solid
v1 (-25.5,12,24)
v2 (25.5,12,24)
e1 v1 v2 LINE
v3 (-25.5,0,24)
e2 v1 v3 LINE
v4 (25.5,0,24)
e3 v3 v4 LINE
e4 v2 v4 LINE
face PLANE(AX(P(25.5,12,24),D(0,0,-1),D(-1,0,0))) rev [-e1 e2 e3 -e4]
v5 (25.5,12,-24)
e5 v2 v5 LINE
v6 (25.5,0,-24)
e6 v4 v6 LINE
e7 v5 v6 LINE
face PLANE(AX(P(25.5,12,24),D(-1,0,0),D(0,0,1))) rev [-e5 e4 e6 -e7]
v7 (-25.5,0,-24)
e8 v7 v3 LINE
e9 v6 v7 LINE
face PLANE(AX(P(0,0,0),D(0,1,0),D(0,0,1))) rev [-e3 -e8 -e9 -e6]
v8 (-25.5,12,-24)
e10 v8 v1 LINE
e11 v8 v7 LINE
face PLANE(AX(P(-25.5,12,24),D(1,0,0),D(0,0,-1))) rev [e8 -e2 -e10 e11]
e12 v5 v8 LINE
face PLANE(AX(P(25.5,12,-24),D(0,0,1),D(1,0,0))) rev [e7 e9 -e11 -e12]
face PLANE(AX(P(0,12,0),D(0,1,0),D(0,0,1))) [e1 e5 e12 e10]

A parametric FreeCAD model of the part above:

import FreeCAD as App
import Part
import Sketcher

V = App.Vector
Q = App.Units.Quantity

doc = App.newDocument("Part")
body = doc.addObject("PartDesign::Body", "Body")

sketch1 = body.newObject("Sketcher::SketchObject", "Sketch")
sketch1.AttachmentSupport = (doc.getObject("XZ_Plane"), [""])
sketch1.MapMode = "FlatFace"
sketch1.addGeometry([
    Part.LineSegment(V(-26, -24, 0), V(-26, 24, 0)),
    Part.LineSegment(V(-26, 24, 0), V(26, 24, 0)),
    Part.LineSegment(V(26, 24, 0), V(26, -24, 0)),
    Part.LineSegment(V(26, -24, 0), V(-26, -24, 0)),
], False)
sketch1.addConstraint([
    Sketcher.Constraint("Coincident", 0, 2, 1, 1),
    Sketcher.Constraint("Coincident", 1, 2, 2, 1),
    Sketcher.Constraint("Coincident", 2, 2, 3, 1),
    Sketcher.Constraint("Coincident", 3, 2, 0, 1),
    Sketcher.Constraint("Vertical", 0),
    Sketcher.Constraint("Horizontal", 1),
    Sketcher.Constraint("Vertical", 2),
    Sketcher.Constraint("Horizontal", 3),
    Sketcher.Constraint("Symmetric", 0, 2, 2, 2, -1, 1),
    Sketcher.Constraint("DistanceX", 1, 1, 1, 2, Q("51 mm")),
    Sketcher.Constraint("DistanceY", 0, 1, 0, 2, Q("48 mm")),
])
pad1 = body.newObject("PartDesign::Pad", "Pad")
pad1.Profile = sketch1
pad1.Length = 12
pad1.Reversed = True

doc.recompute()
